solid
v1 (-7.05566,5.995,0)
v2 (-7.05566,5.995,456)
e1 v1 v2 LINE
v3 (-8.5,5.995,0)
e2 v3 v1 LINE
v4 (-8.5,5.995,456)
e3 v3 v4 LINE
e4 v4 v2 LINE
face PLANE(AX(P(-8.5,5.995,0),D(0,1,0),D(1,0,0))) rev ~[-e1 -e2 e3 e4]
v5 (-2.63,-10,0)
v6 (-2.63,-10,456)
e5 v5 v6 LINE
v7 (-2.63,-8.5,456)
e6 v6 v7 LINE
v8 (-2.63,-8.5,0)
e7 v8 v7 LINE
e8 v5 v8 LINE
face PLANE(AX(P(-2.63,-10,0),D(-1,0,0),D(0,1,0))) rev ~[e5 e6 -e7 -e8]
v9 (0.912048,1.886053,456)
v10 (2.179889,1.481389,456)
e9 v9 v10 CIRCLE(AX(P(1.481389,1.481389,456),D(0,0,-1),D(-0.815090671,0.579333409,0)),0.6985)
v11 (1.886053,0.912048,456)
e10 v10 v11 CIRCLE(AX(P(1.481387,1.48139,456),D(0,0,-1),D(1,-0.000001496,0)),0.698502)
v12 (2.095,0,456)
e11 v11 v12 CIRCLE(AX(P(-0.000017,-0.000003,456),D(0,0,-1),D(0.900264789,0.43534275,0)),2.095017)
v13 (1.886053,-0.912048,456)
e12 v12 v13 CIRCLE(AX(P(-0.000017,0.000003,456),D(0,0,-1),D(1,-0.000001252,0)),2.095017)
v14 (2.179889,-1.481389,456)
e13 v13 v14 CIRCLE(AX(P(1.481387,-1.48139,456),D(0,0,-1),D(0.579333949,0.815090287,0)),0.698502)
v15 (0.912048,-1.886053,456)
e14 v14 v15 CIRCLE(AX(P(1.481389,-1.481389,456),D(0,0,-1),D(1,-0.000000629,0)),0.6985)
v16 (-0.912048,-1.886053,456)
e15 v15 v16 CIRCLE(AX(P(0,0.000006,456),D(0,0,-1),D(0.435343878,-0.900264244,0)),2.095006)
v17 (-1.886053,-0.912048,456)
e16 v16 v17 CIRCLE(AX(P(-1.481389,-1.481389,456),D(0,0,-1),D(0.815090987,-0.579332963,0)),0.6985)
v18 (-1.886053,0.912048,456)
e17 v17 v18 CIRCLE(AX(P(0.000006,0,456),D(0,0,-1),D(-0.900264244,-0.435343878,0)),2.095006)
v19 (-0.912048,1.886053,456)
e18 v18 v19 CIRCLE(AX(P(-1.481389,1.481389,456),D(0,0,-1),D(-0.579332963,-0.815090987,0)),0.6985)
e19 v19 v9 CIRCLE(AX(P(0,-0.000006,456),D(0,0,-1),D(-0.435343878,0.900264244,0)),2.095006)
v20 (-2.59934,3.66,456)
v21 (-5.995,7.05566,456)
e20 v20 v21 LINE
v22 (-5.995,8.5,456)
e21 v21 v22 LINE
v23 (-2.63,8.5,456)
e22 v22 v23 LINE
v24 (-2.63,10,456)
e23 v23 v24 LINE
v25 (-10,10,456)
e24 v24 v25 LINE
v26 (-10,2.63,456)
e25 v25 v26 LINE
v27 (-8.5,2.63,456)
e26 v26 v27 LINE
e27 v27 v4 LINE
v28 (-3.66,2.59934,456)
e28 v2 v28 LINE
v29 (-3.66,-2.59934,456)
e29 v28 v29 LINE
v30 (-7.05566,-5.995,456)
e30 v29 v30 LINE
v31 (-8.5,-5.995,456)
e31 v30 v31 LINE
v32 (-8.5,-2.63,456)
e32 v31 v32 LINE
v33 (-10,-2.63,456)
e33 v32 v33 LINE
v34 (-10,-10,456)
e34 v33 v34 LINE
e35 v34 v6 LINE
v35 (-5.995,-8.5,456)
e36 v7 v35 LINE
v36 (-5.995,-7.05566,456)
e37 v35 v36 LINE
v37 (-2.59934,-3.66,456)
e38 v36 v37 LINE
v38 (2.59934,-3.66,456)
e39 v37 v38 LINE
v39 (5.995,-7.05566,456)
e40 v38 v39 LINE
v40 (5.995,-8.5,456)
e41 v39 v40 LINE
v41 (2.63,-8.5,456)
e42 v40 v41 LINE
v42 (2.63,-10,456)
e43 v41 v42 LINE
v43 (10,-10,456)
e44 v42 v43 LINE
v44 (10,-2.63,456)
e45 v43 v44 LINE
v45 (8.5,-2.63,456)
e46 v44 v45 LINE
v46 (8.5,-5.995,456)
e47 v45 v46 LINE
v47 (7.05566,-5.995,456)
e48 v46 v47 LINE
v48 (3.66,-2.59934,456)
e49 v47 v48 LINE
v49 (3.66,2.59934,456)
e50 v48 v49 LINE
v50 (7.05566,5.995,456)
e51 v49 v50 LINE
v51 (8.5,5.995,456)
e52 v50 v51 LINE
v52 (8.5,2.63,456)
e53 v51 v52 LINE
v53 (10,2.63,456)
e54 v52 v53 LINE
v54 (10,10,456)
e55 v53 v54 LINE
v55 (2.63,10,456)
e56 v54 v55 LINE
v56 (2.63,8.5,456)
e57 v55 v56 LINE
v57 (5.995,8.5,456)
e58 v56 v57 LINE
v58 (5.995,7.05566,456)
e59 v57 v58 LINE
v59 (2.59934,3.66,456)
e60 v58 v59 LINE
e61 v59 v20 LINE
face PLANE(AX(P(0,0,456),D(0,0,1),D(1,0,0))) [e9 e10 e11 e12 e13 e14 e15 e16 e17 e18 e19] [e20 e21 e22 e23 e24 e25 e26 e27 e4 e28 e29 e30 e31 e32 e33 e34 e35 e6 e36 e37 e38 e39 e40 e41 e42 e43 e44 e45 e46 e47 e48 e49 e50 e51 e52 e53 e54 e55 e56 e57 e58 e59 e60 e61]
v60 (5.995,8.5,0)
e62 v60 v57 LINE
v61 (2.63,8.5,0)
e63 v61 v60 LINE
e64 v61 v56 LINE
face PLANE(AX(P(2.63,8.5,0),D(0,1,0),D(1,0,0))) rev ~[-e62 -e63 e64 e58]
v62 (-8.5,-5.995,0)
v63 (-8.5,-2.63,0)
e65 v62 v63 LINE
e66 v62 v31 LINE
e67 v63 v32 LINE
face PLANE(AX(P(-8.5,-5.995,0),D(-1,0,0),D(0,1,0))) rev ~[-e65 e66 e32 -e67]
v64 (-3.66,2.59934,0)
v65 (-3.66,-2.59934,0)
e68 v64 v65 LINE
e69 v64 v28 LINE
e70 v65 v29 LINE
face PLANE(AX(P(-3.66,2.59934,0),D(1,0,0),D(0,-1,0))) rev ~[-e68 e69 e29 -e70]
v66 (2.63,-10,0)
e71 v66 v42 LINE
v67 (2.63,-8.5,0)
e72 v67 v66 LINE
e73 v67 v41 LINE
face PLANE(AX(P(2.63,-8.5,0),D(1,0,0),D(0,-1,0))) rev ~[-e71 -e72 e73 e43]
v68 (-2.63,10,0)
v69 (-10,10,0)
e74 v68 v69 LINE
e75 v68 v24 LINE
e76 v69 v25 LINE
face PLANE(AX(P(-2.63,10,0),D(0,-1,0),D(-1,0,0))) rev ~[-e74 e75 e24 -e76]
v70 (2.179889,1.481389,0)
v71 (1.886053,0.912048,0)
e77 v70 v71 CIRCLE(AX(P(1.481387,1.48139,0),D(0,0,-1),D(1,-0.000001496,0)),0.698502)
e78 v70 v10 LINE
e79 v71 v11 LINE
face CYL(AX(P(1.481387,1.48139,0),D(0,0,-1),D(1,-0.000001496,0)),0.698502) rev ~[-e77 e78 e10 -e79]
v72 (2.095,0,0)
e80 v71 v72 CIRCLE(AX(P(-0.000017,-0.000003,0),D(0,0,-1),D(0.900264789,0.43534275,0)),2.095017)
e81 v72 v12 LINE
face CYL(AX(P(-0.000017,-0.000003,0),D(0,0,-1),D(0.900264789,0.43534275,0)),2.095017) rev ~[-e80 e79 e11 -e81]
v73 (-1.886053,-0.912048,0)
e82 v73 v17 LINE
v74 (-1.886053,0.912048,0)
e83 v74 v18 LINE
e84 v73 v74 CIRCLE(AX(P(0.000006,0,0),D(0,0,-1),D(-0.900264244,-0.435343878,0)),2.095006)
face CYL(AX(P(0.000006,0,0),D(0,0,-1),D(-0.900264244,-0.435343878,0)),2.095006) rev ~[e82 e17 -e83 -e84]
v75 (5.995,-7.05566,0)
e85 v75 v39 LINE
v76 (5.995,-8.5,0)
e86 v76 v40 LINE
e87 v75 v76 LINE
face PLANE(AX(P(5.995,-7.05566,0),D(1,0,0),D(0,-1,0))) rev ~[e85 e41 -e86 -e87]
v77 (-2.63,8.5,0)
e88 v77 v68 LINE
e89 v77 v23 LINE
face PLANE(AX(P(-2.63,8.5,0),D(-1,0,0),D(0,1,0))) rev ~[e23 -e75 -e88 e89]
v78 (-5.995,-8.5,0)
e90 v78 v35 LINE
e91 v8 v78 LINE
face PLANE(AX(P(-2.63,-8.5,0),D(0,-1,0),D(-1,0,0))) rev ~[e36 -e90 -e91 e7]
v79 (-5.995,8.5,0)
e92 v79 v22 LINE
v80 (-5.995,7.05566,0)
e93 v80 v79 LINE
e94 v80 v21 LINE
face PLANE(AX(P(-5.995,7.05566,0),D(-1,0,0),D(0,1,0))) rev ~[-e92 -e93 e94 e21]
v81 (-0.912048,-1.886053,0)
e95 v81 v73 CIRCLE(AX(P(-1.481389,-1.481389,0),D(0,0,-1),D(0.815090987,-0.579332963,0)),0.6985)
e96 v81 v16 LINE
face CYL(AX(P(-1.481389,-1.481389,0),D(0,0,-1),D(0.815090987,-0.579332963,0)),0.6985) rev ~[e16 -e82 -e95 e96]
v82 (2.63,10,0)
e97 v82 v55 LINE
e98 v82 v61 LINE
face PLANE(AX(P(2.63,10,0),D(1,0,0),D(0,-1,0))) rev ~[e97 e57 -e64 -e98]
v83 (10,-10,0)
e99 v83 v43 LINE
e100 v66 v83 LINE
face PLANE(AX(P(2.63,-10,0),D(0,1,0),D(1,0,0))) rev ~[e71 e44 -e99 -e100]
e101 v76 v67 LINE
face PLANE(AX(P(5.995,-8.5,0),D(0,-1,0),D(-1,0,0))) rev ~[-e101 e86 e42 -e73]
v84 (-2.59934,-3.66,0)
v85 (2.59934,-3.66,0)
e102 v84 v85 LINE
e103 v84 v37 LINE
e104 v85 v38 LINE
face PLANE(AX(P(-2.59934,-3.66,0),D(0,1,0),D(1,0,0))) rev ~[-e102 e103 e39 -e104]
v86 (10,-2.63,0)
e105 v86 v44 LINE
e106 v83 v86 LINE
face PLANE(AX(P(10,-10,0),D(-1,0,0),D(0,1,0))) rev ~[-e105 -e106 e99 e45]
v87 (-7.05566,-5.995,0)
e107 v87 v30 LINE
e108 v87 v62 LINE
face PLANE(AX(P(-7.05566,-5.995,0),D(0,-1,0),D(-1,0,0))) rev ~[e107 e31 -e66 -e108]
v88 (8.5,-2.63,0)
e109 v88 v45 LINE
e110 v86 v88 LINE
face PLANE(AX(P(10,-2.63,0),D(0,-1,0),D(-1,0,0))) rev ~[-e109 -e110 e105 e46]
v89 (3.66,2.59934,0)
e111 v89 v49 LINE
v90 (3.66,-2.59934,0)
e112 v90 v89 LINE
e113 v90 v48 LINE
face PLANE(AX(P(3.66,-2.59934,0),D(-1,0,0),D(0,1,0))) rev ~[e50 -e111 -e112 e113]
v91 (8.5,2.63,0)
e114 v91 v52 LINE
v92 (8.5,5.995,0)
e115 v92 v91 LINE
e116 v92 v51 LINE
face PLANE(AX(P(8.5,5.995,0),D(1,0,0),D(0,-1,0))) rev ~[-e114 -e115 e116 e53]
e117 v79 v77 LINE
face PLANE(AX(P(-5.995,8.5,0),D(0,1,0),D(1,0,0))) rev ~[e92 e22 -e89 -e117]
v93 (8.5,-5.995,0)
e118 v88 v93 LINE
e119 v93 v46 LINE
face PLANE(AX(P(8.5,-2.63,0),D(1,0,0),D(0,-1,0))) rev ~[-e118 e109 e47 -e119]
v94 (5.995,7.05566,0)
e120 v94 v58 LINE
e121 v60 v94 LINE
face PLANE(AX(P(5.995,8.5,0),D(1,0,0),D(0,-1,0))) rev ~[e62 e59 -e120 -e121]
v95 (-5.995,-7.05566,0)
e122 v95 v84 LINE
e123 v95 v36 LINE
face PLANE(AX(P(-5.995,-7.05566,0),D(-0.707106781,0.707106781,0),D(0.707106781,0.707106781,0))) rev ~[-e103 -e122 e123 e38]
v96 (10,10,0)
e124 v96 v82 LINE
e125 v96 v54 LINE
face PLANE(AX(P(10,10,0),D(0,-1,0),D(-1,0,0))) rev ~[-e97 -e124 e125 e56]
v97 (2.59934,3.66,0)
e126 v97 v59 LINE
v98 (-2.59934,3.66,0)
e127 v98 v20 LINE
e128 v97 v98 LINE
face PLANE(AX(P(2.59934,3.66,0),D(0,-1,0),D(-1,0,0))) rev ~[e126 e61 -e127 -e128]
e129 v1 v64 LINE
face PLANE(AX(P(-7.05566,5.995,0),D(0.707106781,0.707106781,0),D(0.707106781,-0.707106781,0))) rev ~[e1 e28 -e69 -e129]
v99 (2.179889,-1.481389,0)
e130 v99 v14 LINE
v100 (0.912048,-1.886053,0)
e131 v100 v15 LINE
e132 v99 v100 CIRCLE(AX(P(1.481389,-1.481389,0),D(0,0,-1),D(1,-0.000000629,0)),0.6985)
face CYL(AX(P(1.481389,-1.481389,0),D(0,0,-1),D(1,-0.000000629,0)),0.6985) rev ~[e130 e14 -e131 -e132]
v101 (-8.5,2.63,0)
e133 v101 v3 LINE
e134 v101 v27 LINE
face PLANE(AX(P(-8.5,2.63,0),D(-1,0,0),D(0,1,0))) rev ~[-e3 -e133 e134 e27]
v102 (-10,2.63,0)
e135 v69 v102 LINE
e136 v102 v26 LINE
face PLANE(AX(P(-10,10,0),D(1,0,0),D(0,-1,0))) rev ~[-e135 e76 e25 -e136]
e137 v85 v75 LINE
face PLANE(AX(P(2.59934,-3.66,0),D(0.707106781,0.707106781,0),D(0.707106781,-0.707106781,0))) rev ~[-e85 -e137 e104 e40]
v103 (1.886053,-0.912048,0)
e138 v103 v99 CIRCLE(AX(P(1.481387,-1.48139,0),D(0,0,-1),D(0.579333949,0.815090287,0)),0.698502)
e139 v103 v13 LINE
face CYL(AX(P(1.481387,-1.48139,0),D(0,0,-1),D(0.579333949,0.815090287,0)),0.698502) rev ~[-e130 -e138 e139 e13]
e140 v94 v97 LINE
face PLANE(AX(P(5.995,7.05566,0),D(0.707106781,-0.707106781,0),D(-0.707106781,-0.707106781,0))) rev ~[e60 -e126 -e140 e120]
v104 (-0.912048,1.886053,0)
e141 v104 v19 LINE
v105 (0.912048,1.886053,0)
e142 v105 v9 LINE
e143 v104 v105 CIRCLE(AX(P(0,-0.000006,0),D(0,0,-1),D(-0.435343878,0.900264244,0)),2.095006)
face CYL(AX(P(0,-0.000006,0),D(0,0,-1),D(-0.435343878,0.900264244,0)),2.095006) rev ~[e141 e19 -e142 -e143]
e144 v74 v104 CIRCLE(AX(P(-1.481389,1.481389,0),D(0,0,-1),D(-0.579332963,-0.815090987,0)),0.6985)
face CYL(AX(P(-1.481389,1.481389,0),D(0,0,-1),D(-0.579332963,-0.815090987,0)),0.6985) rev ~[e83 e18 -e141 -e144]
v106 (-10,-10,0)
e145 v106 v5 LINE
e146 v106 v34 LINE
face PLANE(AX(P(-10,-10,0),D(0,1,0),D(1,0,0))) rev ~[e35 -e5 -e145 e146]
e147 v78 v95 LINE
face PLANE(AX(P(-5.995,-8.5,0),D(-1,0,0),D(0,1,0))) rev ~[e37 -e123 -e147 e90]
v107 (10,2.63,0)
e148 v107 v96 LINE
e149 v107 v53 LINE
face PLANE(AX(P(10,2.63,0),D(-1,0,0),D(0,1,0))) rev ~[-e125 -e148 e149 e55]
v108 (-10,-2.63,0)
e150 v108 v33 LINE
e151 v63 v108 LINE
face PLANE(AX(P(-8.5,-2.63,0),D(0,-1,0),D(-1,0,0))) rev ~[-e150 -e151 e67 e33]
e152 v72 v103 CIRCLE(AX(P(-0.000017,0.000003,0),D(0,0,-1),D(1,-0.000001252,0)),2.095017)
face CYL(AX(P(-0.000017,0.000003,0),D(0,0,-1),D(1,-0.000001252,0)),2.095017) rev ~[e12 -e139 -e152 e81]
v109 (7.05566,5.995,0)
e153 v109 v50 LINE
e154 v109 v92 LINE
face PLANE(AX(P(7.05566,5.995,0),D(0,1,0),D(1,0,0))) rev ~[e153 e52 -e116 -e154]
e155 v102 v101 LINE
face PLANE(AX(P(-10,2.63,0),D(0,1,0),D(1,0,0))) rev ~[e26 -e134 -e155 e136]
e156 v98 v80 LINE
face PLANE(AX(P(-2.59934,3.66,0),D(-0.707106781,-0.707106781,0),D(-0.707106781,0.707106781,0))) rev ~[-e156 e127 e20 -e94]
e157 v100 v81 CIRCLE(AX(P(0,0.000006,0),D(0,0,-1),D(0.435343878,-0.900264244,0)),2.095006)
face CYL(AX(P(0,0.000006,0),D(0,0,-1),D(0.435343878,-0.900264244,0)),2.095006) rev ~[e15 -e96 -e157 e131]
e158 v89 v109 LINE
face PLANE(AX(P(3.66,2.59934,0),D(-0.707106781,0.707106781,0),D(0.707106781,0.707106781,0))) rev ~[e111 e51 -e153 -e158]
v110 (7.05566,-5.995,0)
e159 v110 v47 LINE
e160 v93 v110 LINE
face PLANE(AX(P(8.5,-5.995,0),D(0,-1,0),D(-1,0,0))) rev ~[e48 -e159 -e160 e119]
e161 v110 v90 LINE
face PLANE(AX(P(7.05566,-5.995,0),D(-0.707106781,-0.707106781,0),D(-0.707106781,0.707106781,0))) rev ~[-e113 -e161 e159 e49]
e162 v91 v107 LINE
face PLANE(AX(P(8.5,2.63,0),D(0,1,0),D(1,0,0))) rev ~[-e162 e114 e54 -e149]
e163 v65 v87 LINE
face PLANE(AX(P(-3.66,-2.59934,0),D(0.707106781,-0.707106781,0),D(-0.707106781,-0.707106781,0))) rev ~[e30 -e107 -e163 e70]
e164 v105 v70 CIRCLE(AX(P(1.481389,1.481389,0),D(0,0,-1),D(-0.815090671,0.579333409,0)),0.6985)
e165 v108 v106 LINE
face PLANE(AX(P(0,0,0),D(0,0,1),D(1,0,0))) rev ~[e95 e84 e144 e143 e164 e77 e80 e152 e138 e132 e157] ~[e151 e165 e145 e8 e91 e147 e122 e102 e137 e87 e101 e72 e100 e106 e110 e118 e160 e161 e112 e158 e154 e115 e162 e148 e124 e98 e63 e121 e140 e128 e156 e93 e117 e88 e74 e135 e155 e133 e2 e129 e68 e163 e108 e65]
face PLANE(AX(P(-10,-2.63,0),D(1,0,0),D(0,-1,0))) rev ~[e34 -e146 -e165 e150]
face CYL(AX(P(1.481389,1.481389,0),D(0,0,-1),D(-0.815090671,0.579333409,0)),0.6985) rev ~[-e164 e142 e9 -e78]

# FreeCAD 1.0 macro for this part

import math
import FreeCAD as App
import Part
import Sketcher


def add_polygon(sketch, points):
    """Adds a closed chain of lines whose ends are joined by coincident constraints."""
    first, n = sketch.GeometryCount, len(points)
    for a, b in zip(points, points[1:] + points[:1]):
        sketch.addGeometry(Part.LineSegment(App.Vector(*a, 0), App.Vector(*b, 0)), False)
    for i in range(n):
        sketch.addConstraint(Sketcher.Constraint("Coincident", first + i, 2, first + (i + 1) % n, 1))

doc = App.newDocument("Part")
body = doc.addObject("PartDesign::Body", "Body")

sketch1 = doc.addObject("Sketcher::SketchObject", "Sketch")
body.addObject(sketch1)
sketch1.AttachmentSupport = (doc.XY_Plane, [""])
sketch1.MapMode = "FlatFace"
add_polygon(sketch1, [(10, 2.63), (10, 10), (2.63, 10), (2.63, 8.5), (5.995, 8.5), (5.995, 7.05566), (2.59934, 3.66), (-2.59934, 3.66), (-5.995, 7.05566), (-5.995, 8.5), (-2.63, 8.5), (-2.63, 10), (-10, 10), (-10, 2.63), (-8.5, 2.63), (-8.5, 5.995), (-7.05566, 5.995), (-3.66, 2.59934), (-3.66, -2.59934), (-7.05566, -5.995), (-8.5, -5.995), (-8.5, -2.63), (-10, -2.63), (-10, -10), (-2.63, -10), (-2.63, -8.5), (-5.995, -8.5), (-5.995, -7.05566), (-2.59934, -3.66), (2.59934, -3.66), (5.995, -7.05566), (5.995, -8.5), (2.63, -8.5), (2.63, -10), (10, -10), (10, -2.63), (8.5, -2.63), (8.5, -5.995), (7.05566, -5.995), (3.66, -2.59934), (3.66, 2.59934), (7.05566, 5.995), (8.5, 5.995), (8.5, 2.63)])
sketch1.addGeometry(Part.ArcOfCircle(Part.Circle(App.Vector(1.481387, 1.48139, 0), App.Vector(0, 0, 1), 0.698502), math.radians(-54.59629), math.radians(-0.000086)), False)
sketch1.addGeometry(Part.ArcOfCircle(Part.Circle(App.Vector(-0.000017, -0.000003, 0), App.Vector(0, 0, 1), 2.095017), math.radians(0.000072), math.radians(25.807106)), False)
sketch1.addGeometry(Part.ArcOfCircle(Part.Circle(App.Vector(-0.000017, 0.000003, 0), App.Vector(0, 0, 1), 2.095017), math.radians(-25.807106), math.radians(-0.000072)), False)
sketch1.addGeometry(Part.ArcOfCircle(Part.Circle(App.Vector(1.481387, -1.48139, 0), App.Vector(0, 0, 1), 0.698502), math.radians(0.000086), math.radians(54.59629)), False)
sketch1.addGeometry(Part.ArcOfCircle(Part.Circle(App.Vector(1.481389, -1.481389, 0), App.Vector(0, 0, 1), 0.6985), math.radians(-144.596328), math.radians(-0.000036)), False)
sketch1.addGeometry(Part.ArcOfCircle(Part.Circle(App.Vector(0, 0.000006, 0), App.Vector(0, 0, 1), 2.095006), math.radians(-115.807177), math.radians(-64.192823)), False)
sketch1.addGeometry(Part.ArcOfCircle(Part.Circle(App.Vector(-1.481389, -1.481389, 0), App.Vector(0, 0, 1), 0.6985), math.radians(125.40364), math.radians(324.59636)), False)
sketch1.addGeometry(Part.ArcOfCircle(Part.Circle(App.Vector(0.000006, 0, 0), App.Vector(0, 0, 1), 2.095006), math.radians(154.192823), math.radians(205.807177)), False)
sketch1.addGeometry(Part.ArcOfCircle(Part.Circle(App.Vector(-1.481389, 1.481389, 0), App.Vector(0, 0, 1), 0.6985), math.radians(35.40364), math.radians(234.59636)), False)
sketch1.addGeometry(Part.ArcOfCircle(Part.Circle(App.Vector(0, -0.000006, 0), App.Vector(0, 0, 1), 2.095006), math.radians(64.192823), math.radians(115.807177)), False)
sketch1.addGeometry(Part.ArcOfCircle(Part.Circle(App.Vector(1.481389, 1.481389, 0), App.Vector(0, 0, 1), 0.6985), math.radians(0.000036), math.radians(144.596328)), False)
sketch1.addConstraint(Sketcher.Constraint("Coincident", 44, 1, 45, 2))
sketch1.addConstraint(Sketcher.Constraint("Coincident", 45, 1, 46, 2))
sketch1.addConstraint(Sketcher.Constraint("Coincident", 46, 1, 47, 2))
sketch1.addConstraint(Sketcher.Constraint("Coincident", 47, 1, 48, 2))
sketch1.addConstraint(Sketcher.Constraint("Coincident", 48, 1, 49, 2))
sketch1.addConstraint(Sketcher.Constraint("Coincident", 49, 1, 50, 2))
sketch1.addConstraint(Sketcher.Constraint("Coincident", 50, 1, 51, 2))
sketch1.addConstraint(Sketcher.Constraint("Coincident", 51, 1, 52, 2))
sketch1.addConstraint(Sketcher.Constraint("Coincident", 52, 1, 53, 2))
sketch1.addConstraint(Sketcher.Constraint("Coincident", 53, 1, 54, 2))
sketch1.addConstraint(Sketcher.Constraint("Coincident", 54, 1, 44, 2))
sketch1.addConstraint(Sketcher.Constraint("Vertical", 0))
sketch1.addConstraint(Sketcher.Constraint("Horizontal", 1))
sketch1.addConstraint(Sketcher.Constraint("Vertical", 2))
sketch1.addConstraint(Sketcher.Constraint("Horizontal", 3))
sketch1.addConstraint(Sketcher.Constraint("Vertical", 4))
sketch1.addConstraint(Sketcher.Constraint("Horizontal", 6))
sketch1.addConstraint(Sketcher.Constraint("Vertical", 8))
sketch1.addConstraint(Sketcher.Constraint("Horizontal", 9))
sketch1.addConstraint(Sketcher.Constraint("Vertical", 10))
sketch1.addConstraint(Sketcher.Constraint("Horizontal", 11))
sketch1.addConstraint(Sketcher.Constraint("Vertical", 12))
sketch1.addConstraint(Sketcher.Constraint("Horizontal", 13))
sketch1.addConstraint(Sketcher.Constraint("Vertical", 14))
sketch1.addConstraint(Sketcher.Constraint("Horizontal", 15))
sketch1.addConstraint(Sketcher.Constraint("Vertical", 17))
sketch1.addConstraint(Sketcher.Constraint("Horizontal", 19))
sketch1.addConstraint(Sketcher.Constraint("Vertical", 20))
sketch1.addConstraint(Sketcher.Constraint("Horizontal", 21))
sketch1.addConstraint(Sketcher.Constraint("Vertical", 22))
sketch1.addConstraint(Sketcher.Constraint("Horizontal", 23))
sketch1.addConstraint(Sketcher.Constraint("Vertical", 24))
sketch1.addConstraint(Sketcher.Constraint("Horizontal", 25))
sketch1.addConstraint(Sketcher.Constraint("Vertical", 26))
sketch1.addConstraint(Sketcher.Constraint("Horizontal", 28))
sketch1.addConstraint(Sketcher.Constraint("Vertical", 30))
sketch1.addConstraint(Sketcher.Constraint("Horizontal", 31))
sketch1.addConstraint(Sketcher.Constraint("Vertical", 32))
sketch1.addConstraint(Sketcher.Constraint("Horizontal", 33))
sketch1.addConstraint(Sketcher.Constraint("Vertical", 34))
sketch1.addConstraint(Sketcher.Constraint("Horizontal", 35))
sketch1.addConstraint(Sketcher.Constraint("Vertical", 36))
sketch1.addConstraint(Sketcher.Constraint("Horizontal", 37))
sketch1.addConstraint(Sketcher.Constraint("Vertical", 39))
sketch1.addConstraint(Sketcher.Constraint("Horizontal", 41))
sketch1.addConstraint(Sketcher.Constraint("Vertical", 42))
sketch1.addConstraint(Sketcher.Constraint("Horizontal", 43))
sketch1.addConstraint(Sketcher.Constraint("Coincident", 49, 3, -1, 1))
sketch1.addConstraint(Sketcher.Constraint("Coincident", 51, 3, -1, 1))
sketch1.addConstraint(Sketcher.Constraint("Coincident", 53, 3, -1, 1))
sketch1.addConstraint(Sketcher.Constraint("Coincident", 46, 3, 45, 3))
sketch1.addConstraint(Sketcher.Constraint("Coincident", 48, 3, 47, 3))
sketch1.addConstraint(Sketcher.Constraint("Coincident", 54, 3, 44, 3))
sketch1.addConstraint(Sketcher.Constraint("Equal", 44, 47))
sketch1.addConstraint(Sketcher.Constraint("Equal", 48, 50))
sketch1.addConstraint(Sketcher.Constraint("Equal", 49, 51))
sketch1.addConstraint(Sketcher.Constraint("Equal", 50, 52))
sketch1.addConstraint(Sketcher.Constraint("Equal", 51, 53))
sketch1.addConstraint(Sketcher.Constraint("Symmetric", 44, 3, 50, 3, -1, 1))
sketch1.addConstraint(Sketcher.Constraint("Symmetric", 47, 3, 52, 3, -1, 1))
sketch1.addConstraint(Sketcher.Constraint("Symmetric", 0, 2, 22, 2, -1, 1))
sketch1.addConstraint(Sketcher.Constraint("Symmetric", 2, 2, 24, 2, -1, 1))
sketch1.addConstraint(Sketcher.Constraint("Symmetric", 4, 2, 26, 2, -1, 1))
sketch1.addConstraint(Sketcher.Constraint("Symmetric", 5, 2, 27, 2, -1, 1))
sketch1.addConstraint(Sketcher.Constraint("Symmetric", 7, 2, 29, 2, -1, 1))
sketch1.addConstraint(Sketcher.Constraint("Symmetric", 9, 2, 31, 2, -1, 1))
sketch1.addConstraint(Sketcher.Constraint("Symmetric", 11, 2, 33, 2, -1, 1))
sketch1.addConstraint(Sketcher.Constraint("Symmetric", 13, 2, 35, 2, -1, 1))
sketch1.addConstraint(Sketcher.Constraint("Symmetric", 15, 2, 37, 2, -1, 1))
sketch1.addConstraint(Sketcher.Constraint("Symmetric", 16, 2, 38, 2, -1, 1))
sketch1.addConstraint(Sketcher.Constraint("Symmetric", 18, 2, 40, 2, -1, 1))
sketch1.addConstraint(Sketcher.Constraint("Symmetric", 20, 2, 42, 2, -1, 1))
sketch1.addConstraint(Sketcher.Constraint("Symmetric", 47, 3, 50, 3, -2))
sketch1.addConstraint(Sketcher.Constraint("Symmetric", 4, 2, 7, 2, -2))
sketch1.addConstraint(Sketcher.Constraint("Symmetric", 2, 2, 9, 2, -2))
sketch1.addConstraint(Sketcher.Constraint("Symmetric", 0, 2, 11, 2, -2))
sketch1.addConstraint(Sketcher.Constraint("Symmetric", 20, 2, 35, 2, -2))
sketch1.addConstraint(Sketcher.Constraint("Symmetric", 18, 2, 37, 2, -2))
sketch1.addConstraint(Sketcher.Constraint("PointOnObject", 45, 1, -1))
sketch1.addConstraint(Sketcher.Constraint("Perpendicular", 5, 7))
sketch1.addConstraint(Sketcher.Constraint("Parallel", 7, 16))
sketch1.addConstraint(Sketcher.Constraint("Perpendicular", 16, 18))
sketch1.addConstraint(Sketcher.Constraint("Perpendicular", 27, 29))
sketch1.addConstraint(Sketcher.Constraint("Perpendicular", 38, 40))
sketch1.addConstraint(Sketcher.Constraint("Horizontal", 17, 2, 38, 2))
sketch1.addConstraint(Sketcher.Constraint("Horizontal", 50, 3, 47, 1))
sketch1.addConstraint(Sketcher.Constraint("Horizontal", 46, 1, 50, 1))
sketch1.addConstraint(Sketcher.Constraint("Horizontal", 44, 1, 51, 1))
sketch1.addConstraint(Sketcher.Constraint("Horizontal", 52, 3, 54, 1))
sketch1.addConstraint(Sketcher.Constraint("Equal", 33, 0))
sketch1.addConstraint(Sketcher.Constraint("Equal", 43, 2))
sketch1.addConstraint(Sketcher.Constraint("Equal", 41, 4))
sketch1.addConstraint(Sketcher.Constraint("Equal", 31, 14))
sketch1.addConstraint(Sketcher.Constraint("Equal", 28, 17))
sketch1.addConstraint(Sketcher.Constraint("Equal", 7, 16))
sketch1.addConstraint(Sketcher.Constraint("DistanceX", 13, 1, 13, 2, 1.5))
sketch1.addConstraint(Sketcher.Constraint("DistanceX", -1, 1, 0, 2, 10.0))
sketch1.addConstraint(Sketcher.Constraint("DistanceX", 1, 2, 1, 1, 7.37))
sketch1.addConstraint(Sketcher.Constraint("Radius", 44, 0.698502))
sketch1.addConstraint(Sketcher.Constraint("DistanceX", 3, 1, 3, 2, 3.365))
sketch1.addConstraint(Sketcher.Constraint("DistanceY", -1, 1, 5, 2, 3.66))
sketch1.addConstraint(Sketcher.Constraint("DistanceX", -1, 1, 45, 1, 2.095))
sketch1.addConstraint(Sketcher.Constraint("Radius", 45, 2.095017))
sketch1.addConstraint(Sketcher.Constraint("DistanceX", 6, 2, 6, 1, 5.19868))
sketch1.addConstraint(Sketcher.Constraint("DistanceY", -1, 1, 44, 3, 1.48139))
sketch1.addConstraint(Sketcher.Constraint("DistanceX", -1, 1, 48, 3, 1.481389))
pad1 = doc.addObject("PartDesign::Pad", "Pad")
body.addObject(pad1)
pad1.Profile = sketch1
pad1.Length = 456

doc.recompute()
